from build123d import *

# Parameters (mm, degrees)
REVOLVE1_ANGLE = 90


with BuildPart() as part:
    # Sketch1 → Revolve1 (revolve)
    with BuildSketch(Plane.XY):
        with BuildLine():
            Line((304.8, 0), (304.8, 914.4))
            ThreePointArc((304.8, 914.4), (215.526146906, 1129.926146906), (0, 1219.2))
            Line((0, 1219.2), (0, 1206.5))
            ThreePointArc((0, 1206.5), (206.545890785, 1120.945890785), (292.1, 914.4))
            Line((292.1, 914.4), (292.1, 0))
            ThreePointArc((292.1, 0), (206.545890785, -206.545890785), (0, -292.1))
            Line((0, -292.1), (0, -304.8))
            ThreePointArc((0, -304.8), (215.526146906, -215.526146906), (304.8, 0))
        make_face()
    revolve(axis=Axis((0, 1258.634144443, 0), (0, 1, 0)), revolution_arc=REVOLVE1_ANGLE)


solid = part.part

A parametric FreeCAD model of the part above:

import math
import FreeCAD as App
import Part
import Sketcher

V = App.Vector
Q = App.Units.Quantity

doc = App.newDocument("Part")
body = doc.addObject("PartDesign::Body", "Body")

# Sketch on XY plane
sketch1 = body.newObject("Sketcher::SketchObject", "Sketch")
sketch1.AttachmentSupport = (doc.getObject("XY_Plane"), [""])
sketch1.MapMode = "FlatFace"
sketch1.addGeometry([
    Part.LineSegment(V(304.8, 0, 0), V(304.8, 914.4, 0)),  # 0
    Part.ArcOfCircle(Part.Circle(V(0, 914.4, 0), V(0, 0, 1), 304.8), math.radians(0), math.radians(90)),  # 1
    Part.LineSegment(V(0, 1219.2, 0), V(0, 1206.5, 0)),  # 2
    Part.ArcOfCircle(Part.Circle(V(0, 914.4, 0), V(0, 0, 1), 292.1), math.radians(0), math.radians(90)),  # 3
    Part.LineSegment(V(292.1, 914.4, 0), V(292.1, 0, 0)),  # 4
    Part.ArcOfCircle(Part.Circle(V(0, 0, 0), V(0, 0, 1), 292.1), math.radians(-90), math.radians(0)),  # 5
    Part.LineSegment(V(0, -292.1, 0), V(0, -304.8, 0)),  # 6
    Part.ArcOfCircle(Part.Circle(V(0, 0, 0), V(0, 0, 1), 304.8), math.radians(-90), math.radians(0)),  # 7
], False)
sketch1.addConstraint([
    Sketcher.Constraint("Tangent", 0, 2, 1, 1),
    Sketcher.Constraint("Coincident", 1, 2, 2, 1),
    Sketcher.Constraint("Coincident", 2, 2, 3, 2),
    Sketcher.Constraint("Tangent", 3, 1, 4, 1),
    Sketcher.Constraint("Tangent", 4, 2, 5, 2),
    Sketcher.Constraint("Coincident", 5, 1, 6, 1),
    Sketcher.Constraint("Coincident", 6, 2, 7, 1),
    Sketcher.Constraint("Tangent", 7, 2, 0, 1),
    Sketcher.Constraint("Vertical", 0),
    Sketcher.Constraint("Vertical", 2),
    Sketcher.Constraint("Vertical", 4),
    Sketcher.Constraint("Vertical", 6),
    Sketcher.Constraint("Coincident", 5, 3, -1, 1),
    Sketcher.Constraint("Coincident", 7, 3, -1, 1),
    Sketcher.Constraint("Coincident", 3, 3, 1, 3),
    Sketcher.Constraint("Equal", 3, 5),
    Sketcher.Constraint("PointOnObject", 1, 2, -2),
    Sketcher.Constraint("PointOnObject", 5, 1, -2),
    Sketcher.Constraint("Radius", 1, Q("12 in")),
    Sketcher.Constraint("Radius", 3, Q("11.5 in")),
    Sketcher.Constraint("DistanceY", 0, 1, 0, 2, Q("36 in")),
])
revolution = body.newObject("PartDesign::Revolution", "Revolution")
revolution.Profile = sketch1
revolution.ReferenceAxis = (sketch1, ["V_Axis"])
revolution.Angle = 90

doc.recompute()
